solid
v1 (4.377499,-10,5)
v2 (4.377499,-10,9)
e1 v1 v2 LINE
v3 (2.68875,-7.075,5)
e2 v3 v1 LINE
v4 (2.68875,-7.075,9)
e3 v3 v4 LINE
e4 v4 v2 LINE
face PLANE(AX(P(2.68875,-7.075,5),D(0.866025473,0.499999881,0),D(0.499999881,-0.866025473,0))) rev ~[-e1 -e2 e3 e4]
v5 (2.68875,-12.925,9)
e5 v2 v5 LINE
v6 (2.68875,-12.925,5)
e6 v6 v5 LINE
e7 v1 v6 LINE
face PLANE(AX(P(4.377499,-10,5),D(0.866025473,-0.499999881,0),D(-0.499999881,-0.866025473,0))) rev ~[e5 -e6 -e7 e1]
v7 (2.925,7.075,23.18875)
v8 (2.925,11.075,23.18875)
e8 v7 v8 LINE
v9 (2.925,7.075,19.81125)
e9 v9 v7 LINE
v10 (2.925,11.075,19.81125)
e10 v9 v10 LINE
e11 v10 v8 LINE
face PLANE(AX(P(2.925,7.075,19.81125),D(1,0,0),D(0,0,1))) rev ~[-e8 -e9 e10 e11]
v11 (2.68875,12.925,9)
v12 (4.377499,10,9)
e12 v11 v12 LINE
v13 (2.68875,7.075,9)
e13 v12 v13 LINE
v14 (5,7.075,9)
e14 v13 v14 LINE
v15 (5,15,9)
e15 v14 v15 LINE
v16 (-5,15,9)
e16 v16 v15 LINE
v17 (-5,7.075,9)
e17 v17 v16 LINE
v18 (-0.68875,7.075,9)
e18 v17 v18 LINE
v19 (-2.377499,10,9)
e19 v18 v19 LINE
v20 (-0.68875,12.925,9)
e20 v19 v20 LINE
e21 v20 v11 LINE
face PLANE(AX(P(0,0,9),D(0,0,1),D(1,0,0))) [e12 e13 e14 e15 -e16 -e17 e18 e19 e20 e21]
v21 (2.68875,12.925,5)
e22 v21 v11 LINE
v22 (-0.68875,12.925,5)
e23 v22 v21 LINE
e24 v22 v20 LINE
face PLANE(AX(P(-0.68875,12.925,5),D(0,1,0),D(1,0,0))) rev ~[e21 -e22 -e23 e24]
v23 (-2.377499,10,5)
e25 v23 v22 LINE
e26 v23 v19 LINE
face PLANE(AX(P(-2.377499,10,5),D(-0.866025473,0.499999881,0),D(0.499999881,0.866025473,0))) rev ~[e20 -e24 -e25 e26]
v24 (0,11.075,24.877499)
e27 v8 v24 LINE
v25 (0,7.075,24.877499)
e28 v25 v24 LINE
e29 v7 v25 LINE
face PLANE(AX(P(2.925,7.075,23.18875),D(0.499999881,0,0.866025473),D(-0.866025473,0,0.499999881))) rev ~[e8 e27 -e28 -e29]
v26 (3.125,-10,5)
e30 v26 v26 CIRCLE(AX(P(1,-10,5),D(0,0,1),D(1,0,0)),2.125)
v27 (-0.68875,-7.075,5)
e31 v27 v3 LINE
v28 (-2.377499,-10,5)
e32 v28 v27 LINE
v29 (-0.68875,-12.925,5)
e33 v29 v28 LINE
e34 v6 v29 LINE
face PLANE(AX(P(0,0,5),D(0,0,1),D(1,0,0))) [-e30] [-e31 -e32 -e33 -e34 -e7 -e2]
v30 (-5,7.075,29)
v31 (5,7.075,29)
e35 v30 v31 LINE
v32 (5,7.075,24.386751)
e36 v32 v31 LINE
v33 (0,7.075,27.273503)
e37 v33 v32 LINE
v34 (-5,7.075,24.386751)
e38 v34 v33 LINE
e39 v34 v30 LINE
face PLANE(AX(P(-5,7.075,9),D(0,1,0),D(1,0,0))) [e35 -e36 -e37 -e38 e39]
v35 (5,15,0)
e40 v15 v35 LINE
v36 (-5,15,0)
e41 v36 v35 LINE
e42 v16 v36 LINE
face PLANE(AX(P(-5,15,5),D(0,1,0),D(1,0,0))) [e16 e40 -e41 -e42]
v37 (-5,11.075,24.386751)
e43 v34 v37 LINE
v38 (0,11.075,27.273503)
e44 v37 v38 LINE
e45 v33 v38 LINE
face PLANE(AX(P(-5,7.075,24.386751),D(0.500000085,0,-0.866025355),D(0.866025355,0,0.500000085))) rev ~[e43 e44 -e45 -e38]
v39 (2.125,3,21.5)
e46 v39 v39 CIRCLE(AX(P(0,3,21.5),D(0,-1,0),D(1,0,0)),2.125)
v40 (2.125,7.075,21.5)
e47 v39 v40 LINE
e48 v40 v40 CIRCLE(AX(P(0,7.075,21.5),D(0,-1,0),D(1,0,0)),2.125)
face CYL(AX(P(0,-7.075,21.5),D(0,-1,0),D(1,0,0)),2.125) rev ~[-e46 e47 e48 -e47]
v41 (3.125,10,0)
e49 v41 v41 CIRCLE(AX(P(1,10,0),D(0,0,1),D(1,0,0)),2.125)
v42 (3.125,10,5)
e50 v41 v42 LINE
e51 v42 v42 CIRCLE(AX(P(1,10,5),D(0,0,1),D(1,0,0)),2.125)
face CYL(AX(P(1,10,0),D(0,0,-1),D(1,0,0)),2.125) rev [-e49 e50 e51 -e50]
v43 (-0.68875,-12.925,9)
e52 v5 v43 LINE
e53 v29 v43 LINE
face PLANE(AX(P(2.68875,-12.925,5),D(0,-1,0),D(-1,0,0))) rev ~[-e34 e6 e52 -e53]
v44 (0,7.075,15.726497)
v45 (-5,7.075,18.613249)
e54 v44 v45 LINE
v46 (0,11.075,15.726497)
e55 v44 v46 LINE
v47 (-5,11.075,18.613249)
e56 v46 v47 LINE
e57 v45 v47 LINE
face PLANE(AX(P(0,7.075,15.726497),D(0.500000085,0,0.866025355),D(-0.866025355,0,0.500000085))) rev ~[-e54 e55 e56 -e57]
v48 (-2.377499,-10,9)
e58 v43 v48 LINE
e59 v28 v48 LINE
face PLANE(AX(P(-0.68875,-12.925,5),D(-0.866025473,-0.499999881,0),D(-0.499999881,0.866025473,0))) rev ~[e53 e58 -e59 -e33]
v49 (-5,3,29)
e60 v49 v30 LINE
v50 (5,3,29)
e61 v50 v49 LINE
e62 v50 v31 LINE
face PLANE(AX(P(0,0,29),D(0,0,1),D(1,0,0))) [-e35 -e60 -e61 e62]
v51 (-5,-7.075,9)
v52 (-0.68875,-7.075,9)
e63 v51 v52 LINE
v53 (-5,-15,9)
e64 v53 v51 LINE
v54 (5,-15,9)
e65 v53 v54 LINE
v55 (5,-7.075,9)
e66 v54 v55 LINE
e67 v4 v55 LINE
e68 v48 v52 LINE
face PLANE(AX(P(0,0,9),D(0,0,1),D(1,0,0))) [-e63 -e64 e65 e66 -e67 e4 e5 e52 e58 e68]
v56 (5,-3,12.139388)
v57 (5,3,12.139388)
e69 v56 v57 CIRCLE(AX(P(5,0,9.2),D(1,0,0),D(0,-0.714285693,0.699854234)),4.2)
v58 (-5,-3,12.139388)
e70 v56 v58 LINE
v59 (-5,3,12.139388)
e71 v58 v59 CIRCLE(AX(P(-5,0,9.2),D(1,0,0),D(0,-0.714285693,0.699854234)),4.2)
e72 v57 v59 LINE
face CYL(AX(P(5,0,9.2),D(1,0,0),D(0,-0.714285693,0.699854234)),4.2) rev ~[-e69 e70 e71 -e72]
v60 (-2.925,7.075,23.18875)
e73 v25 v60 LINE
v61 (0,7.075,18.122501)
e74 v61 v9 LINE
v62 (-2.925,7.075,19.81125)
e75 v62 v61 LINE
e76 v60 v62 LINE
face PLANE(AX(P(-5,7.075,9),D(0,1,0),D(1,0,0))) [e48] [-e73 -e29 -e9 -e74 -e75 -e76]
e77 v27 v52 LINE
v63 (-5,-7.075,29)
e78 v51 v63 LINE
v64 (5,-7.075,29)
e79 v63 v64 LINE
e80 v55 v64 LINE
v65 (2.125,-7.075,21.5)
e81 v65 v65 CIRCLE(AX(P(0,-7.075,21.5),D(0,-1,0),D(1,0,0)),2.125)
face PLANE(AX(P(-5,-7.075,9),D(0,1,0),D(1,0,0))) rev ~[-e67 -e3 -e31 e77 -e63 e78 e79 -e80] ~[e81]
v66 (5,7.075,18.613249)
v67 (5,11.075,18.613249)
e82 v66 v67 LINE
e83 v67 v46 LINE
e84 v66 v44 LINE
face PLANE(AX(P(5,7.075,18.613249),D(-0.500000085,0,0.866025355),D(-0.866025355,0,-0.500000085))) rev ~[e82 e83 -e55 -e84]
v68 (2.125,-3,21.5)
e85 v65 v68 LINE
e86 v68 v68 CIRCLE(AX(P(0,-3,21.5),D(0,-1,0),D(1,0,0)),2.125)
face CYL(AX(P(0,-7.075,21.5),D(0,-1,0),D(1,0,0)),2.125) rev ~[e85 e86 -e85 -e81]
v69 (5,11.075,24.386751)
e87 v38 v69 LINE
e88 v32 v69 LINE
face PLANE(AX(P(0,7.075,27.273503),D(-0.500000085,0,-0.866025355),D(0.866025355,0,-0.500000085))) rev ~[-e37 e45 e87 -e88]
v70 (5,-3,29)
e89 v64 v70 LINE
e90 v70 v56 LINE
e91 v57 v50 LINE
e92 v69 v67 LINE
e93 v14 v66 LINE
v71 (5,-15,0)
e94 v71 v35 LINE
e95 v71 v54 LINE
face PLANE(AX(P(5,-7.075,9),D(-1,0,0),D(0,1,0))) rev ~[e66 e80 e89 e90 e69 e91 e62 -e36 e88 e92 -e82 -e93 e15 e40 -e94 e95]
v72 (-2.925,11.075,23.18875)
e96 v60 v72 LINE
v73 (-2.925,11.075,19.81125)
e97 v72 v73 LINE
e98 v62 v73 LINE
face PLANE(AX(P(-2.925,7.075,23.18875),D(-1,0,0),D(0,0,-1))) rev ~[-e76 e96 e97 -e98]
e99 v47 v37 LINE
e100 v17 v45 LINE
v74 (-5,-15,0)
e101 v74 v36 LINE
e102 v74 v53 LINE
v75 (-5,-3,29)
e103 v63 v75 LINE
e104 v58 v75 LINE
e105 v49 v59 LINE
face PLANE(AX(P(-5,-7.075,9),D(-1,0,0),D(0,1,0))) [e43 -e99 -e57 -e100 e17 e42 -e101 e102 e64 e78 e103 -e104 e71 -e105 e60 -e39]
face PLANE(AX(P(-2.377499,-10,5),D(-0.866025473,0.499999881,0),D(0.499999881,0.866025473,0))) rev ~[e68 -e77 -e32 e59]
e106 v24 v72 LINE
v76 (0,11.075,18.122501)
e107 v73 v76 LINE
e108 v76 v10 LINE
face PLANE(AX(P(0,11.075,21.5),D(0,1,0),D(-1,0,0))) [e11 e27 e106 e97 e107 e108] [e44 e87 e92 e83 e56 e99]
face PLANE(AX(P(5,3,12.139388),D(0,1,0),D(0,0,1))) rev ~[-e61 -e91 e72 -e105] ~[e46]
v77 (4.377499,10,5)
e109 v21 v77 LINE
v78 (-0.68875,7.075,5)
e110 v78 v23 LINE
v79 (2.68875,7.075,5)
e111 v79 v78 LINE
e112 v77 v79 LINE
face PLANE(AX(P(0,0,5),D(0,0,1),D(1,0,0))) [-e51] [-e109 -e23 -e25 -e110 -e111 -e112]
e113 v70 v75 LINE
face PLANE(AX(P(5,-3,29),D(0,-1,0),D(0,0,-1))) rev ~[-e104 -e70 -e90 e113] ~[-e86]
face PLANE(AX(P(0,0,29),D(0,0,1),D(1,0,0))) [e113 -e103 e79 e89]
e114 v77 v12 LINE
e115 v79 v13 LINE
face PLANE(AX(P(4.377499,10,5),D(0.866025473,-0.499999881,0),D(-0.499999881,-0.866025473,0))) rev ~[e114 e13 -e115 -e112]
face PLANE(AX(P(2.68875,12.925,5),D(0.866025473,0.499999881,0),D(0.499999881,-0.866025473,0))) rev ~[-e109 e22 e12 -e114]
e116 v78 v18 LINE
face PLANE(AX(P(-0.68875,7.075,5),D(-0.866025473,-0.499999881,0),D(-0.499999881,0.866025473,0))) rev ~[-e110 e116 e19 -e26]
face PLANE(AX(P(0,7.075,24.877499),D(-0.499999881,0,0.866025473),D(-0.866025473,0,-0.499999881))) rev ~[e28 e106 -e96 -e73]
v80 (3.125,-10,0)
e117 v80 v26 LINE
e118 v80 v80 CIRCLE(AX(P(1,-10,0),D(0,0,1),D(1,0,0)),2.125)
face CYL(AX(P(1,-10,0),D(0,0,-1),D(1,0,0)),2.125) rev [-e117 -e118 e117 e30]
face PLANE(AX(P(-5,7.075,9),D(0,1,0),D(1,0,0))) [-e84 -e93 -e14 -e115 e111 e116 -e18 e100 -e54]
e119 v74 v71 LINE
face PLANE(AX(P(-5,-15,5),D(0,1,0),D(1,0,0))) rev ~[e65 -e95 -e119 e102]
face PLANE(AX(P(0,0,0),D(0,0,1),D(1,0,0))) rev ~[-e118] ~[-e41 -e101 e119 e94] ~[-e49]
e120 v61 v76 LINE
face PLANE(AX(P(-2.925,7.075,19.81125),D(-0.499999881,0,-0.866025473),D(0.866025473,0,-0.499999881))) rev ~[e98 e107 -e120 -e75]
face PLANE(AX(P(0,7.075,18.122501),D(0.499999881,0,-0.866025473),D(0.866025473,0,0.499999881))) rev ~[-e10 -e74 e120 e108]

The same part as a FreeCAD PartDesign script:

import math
import FreeCAD as App
import Part
import Sketcher

V = App.Vector
Q = App.Units.Quantity


def add_polygon(sketch, points):
    """Adds a closed chain of lines whose ends are joined by coincident constraints."""
    first, n = sketch.GeometryCount, len(points)
    for a, b in zip(points, points[1:] + points[:1]):
        sketch.addGeometry(Part.LineSegment(App.Vector(*a, 0), App.Vector(*b, 0)), False)
    for i in range(n):
        sketch.addConstraint(Sketcher.Constraint("Coincident", first + i, 2, first + (i + 1) % n, 1))

doc = App.newDocument("Part")
body = doc.addObject("PartDesign::Body", "Body")

sketch1 = doc.addObject("Sketcher::SketchObject", "Sketch")
body.addObject(sketch1)
sketch1.AttachmentSupport = (doc.XY_Plane, [""])
sketch1.MapMode = "FlatFace"
add_polygon(sketch1, [(-5, 15), (-5, -15), (5, -15), (5, 15)])
sketch1.addGeometry(Part.Circle(V(1, -10, 0), V(0, 0, 1), 2.1), False)
sketch1.addGeometry(Part.Circle(V(1, 10, 0), V(0, 0, 1), 2.1), False)
sketch1.addConstraint([
    Sketcher.Constraint("Vertical", 0),
    Sketcher.Constraint("Horizontal", 1),
    Sketcher.Constraint("Vertical", 2),
    Sketcher.Constraint("Horizontal", 3),
    Sketcher.Constraint("Equal", 4, 5),
    Sketcher.Constraint("Symmetric", 0, 2, 2, 2, -1, 1),
    Sketcher.Constraint("Symmetric", 4, 3, 5, 3, -1),
    Sketcher.Constraint("Diameter", 4, Q("4.25 mm")),
    Sketcher.Constraint("DistanceX", 1, 1, 1, 2, Q("10 mm")),
    Sketcher.Constraint("DistanceY", 0, 2, 0, 1, Q("30 mm")),
    Sketcher.Constraint("DistanceX", -1, 1, 4, 3, Q("1 mm")),
    Sketcher.Constraint("DistanceY", 4, 3, -1, 1, Q("10 mm")),
])
pad1 = doc.addObject("PartDesign::Pad", "Pad")
body.addObject(pad1)
pad1.Profile = sketch1
pad1.Length = 5

sketch2 = doc.addObject("Sketcher::SketchObject", "Sketch001")
body.addObject(sketch2)
sketch2.AttachmentSupport = (doc.XY_Plane, [""])
sketch2.MapMode = "FlatFace"
sketch2.AttachmentOffset = App.Placement(V(0, 0, 5), App.Rotation())
add_polygon(sketch2, [(-5, 15), (-5, -15), (5, -15), (5, 15)])
add_polygon(sketch2, [(-2.4, -10), (-0.7, -7.1), (2.7, -7.1), (4.4, -10), (2.7, -12.9), (-0.7, -12.9)])
add_polygon(sketch2, [(2.7, 12.9), (4.4, 10), (2.7, 7.1), (-0.7, 7.1), (-2.4, 10), (-0.7, 12.9)])
sketch2.addConstraint([
    Sketcher.Constraint("Vertical", 0),
    Sketcher.Constraint("Horizontal", 1),
    Sketcher.Constraint("Vertical", 2),
    Sketcher.Constraint("Horizontal", 3),
    Sketcher.Constraint("Horizontal", 5),
    Sketcher.Constraint("Horizontal", 8),
    Sketcher.Constraint("Horizontal", 12),
    Sketcher.Constraint("Horizontal", 15),
    Sketcher.Constraint("Symmetric", 0, 2, 2, 2, -1, 1),
    Sketcher.Constraint("Symmetric", 6, 2, 10, 2, -1),
    Sketcher.Constraint("Symmetric", 5, 2, 11, 2, -1),
    Sketcher.Constraint("Symmetric", 9, 2, 13, 2, -1),
    Sketcher.Constraint("Symmetric", 8, 2, 14, 2, -1),
    Sketcher.Constraint("Parallel", 4, 7),
    Sketcher.Constraint("Parallel", 6, 9),
    Sketcher.Constraint("Parallel", 9, 10),
    Sketcher.Constraint("Parallel", 7, 11),
    Sketcher.Constraint("Parallel", 10, 13),
    Sketcher.Constraint("Horizontal", 6, 2, 9, 2),
    Sketcher.Constraint("Vertical", 5, 2, 7, 2),
    Sketcher.Constraint("DistanceX", 1, 1, 1, 2, Q("10 mm")),
    Sketcher.Constraint("DistanceY", 0, 2, 0, 1, Q("30 mm")),
    Sketcher.Constraint("Angle", 4, Q("60.000008 deg")),
    Sketcher.Constraint("DistanceY", 6, 2, -1, 1, Q("10 mm")),
    Sketcher.Constraint("DistanceY", 7, 2, 5, 2, Q("5.85 mm")),
    Sketcher.Constraint("DistanceX", 5, 1, 5, 2, Q("3.3775 mm")),
    Sketcher.Constraint("DistanceX", -1, 1, 6, 2, Q("4.377499 mm")),
])
pad2 = doc.addObject("PartDesign::Pad", "Pad001")
body.addObject(pad2)
pad2.Profile = sketch2
pad2.Length = 4

sketch3 = doc.addObject("Sketcher::SketchObject", "Sketch002")
body.addObject(sketch3)
sketch3.AttachmentSupport = (doc.XY_Plane, [""])
sketch3.MapMode = "FlatFace"
sketch3.AttachmentOffset = App.Placement(V(0, 0, 9), App.Rotation())
add_polygon(sketch3, [(-5, 7), (-5, -7), (5, -7), (5, 7)])
sketch3.addConstraint([
    Sketcher.Constraint("Vertical", 0),
    Sketcher.Constraint("Horizontal", 1),
    Sketcher.Constraint("Vertical", 2),
    Sketcher.Constraint("Horizontal", 3),
    Sketcher.Constraint("Symmetric", 0, 2, 2, 2, -1, 1),
    Sketcher.Constraint("DistanceX", 1, 1, 1, 2, Q("10 mm")),
    Sketcher.Constraint("DistanceY", 0, 2, 0, 1, Q("14.15 mm")),
])
pad3 = doc.addObject("PartDesign::Pad", "Pad002")
body.addObject(pad3)
pad3.Profile = sketch3
pad3.Length = 20

sketch4 = doc.addObject("Sketcher::SketchObject", "Sketch003")
body.addObject(sketch4)
sketch4.AttachmentSupport = (doc.YZ_Plane, [""])
sketch4.MapMode = "FlatFace"
sketch4.AttachmentOffset = App.Placement(V(0, 0, 5), App.Rotation())
sketch4.addGeometry([
    Part.ArcOfCircle(Part.Circle(V(0, 9.2, 0), V(0, 0, 1), 4.2), math.radians(136), math.radians(404)),
    Part.LineSegment(V(3, 12.1, 0), V(3, 29, 0)),
    Part.LineSegment(V(3, 29, 0), V(-3, 29, 0)),
    Part.LineSegment(V(-3, 29, 0), V(-3, 12.1, 0)),
], False)
sketch4.addConstraint([
    Sketcher.Constraint("Coincident", 0, 2, 1, 1),
    Sketcher.Constraint("Coincident", 1, 2, 2, 1),
    Sketcher.Constraint("Coincident", 2, 2, 3, 1),
    Sketcher.Constraint("Coincident", 3, 2, 0, 1),
    Sketcher.Constraint("Vertical", 1),
    Sketcher.Constraint("Horizontal", 2),
    Sketcher.Constraint("Vertical", 3),
    Sketcher.Constraint("Symmetric", 0, 2, 3, 2, -2),
    Sketcher.Constraint("Radius", 0, Q("4.2 mm")),
    Sketcher.Constraint("DistanceX", 2, 2, 2, 1, Q("6 mm")),
    Sketcher.Constraint("DistanceY", -1, 1, 1, 2, Q("29 mm")),
    Sketcher.Constraint("DistanceY", -1, 1, 0, 3, Q("9.2 mm")),
])
pocket1 = doc.addObject("PartDesign::Pocket", "Pocket")
body.addObject(pocket1)
pocket1.Profile = sketch4
pocket1.Type = "ThroughAll"

sketch5 = doc.addObject("Sketcher::SketchObject", "Sketch004")
body.addObject(sketch5)
sketch5.AttachmentSupport = (doc.XZ_Plane, [""])
sketch5.MapMode = "FlatFace"
sketch5.AttachmentOffset = App.Placement(V(0, 0, 7.075), App.Rotation())
sketch5.addGeometry(Part.Circle(V(0, 21.5, 0), V(0, 0, 1), 2.1), False)
sketch5.addConstraint([
    Sketcher.Constraint("PointOnObject", 0, 3, -2),
    Sketcher.Constraint("Diameter", 0, Q("4.25 mm")),
    Sketcher.Constraint("DistanceY", -1, 1, 0, 3, Q("21.5 mm")),
])
pocket2 = doc.addObject("PartDesign::Pocket", "Pocket001")
body.addObject(pocket2)
pocket2.Profile = sketch5
pocket2.Type = "ThroughAll"

sketch6 = doc.addObject("Sketcher::SketchObject", "Sketch005")
body.addObject(sketch6)
sketch6.AttachmentSupport = (doc.XZ_Plane, [""])
sketch6.MapMode = "FlatFace"
sketch6.AttachmentOffset = App.Placement(V(0, 0, -7.075), App.Rotation())
add_polygon(sketch6, [(-5, 18.6), (-5, 24.4), (0, 27.3), (5, 24.4), (5, 18.6), (0, 15.7)])
add_polygon(sketch6, [(2.9, 23.2), (0, 24.9), (-2.9, 23.2), (-2.9, 19.8), (0, 18.1), (2.9, 19.8)])
sketch6.addConstraint([
    Sketcher.Constraint("Vertical", 0),
    Sketcher.Constraint("Vertical", 3),
    Sketcher.Constraint("Vertical", 8),
    Sketcher.Constraint("Vertical", 11),
    Sketcher.Constraint("Symmetric", 0, 2, 2, 2, -2),
    Sketcher.Constraint("Symmetric", 8, 2, 10, 2, -2),
    Sketcher.Constraint("PointOnObject", 1, 2, -2),
    Sketcher.Constraint("PointOnObject", 4, 2, -2),
    Sketcher.Constraint("PointOnObject", 6, 2, -2),
    Sketcher.Constraint("PointOnObject", 9, 2, -2),
    Sketcher.Constraint("Parallel", 1, 4),
    Sketcher.Constraint("Parallel", 2, 5),
    Sketcher.Constraint("Parallel", 5, 6),
    Sketcher.Constraint("Parallel", 4, 7),
    Sketcher.Constraint("Parallel", 6, 9),
    Sketcher.Constraint("Angle", 1, Q("30.000006 deg")),
    Sketcher.Constraint("DistanceX", 0, 2, -1, 1, Q("5 mm")),
    Sketcher.Constraint("DistanceX", 8, 2, 10, 2, Q("5.85 mm")),
    Sketcher.Constraint("DistanceY", 8, 2, 8, 1, Q("3.3775 mm")),
    Sketcher.Constraint("DistanceY", 7, 2, 0, 2, Q("1.198001 mm")),
    Sketcher.Constraint("DistanceY", 5, 2, 8, 2, Q("1.198001 mm")),
    Sketcher.Constraint("DistanceY", -1, 1, 6, 2, Q("24.877499 mm")),
])
pad4 = doc.addObject("PartDesign::Pad", "Pad003")
body.addObject(pad4)
pad4.Profile = sketch6
pad4.Length = 4
pad4.Reversed = True

doc.recompute()
